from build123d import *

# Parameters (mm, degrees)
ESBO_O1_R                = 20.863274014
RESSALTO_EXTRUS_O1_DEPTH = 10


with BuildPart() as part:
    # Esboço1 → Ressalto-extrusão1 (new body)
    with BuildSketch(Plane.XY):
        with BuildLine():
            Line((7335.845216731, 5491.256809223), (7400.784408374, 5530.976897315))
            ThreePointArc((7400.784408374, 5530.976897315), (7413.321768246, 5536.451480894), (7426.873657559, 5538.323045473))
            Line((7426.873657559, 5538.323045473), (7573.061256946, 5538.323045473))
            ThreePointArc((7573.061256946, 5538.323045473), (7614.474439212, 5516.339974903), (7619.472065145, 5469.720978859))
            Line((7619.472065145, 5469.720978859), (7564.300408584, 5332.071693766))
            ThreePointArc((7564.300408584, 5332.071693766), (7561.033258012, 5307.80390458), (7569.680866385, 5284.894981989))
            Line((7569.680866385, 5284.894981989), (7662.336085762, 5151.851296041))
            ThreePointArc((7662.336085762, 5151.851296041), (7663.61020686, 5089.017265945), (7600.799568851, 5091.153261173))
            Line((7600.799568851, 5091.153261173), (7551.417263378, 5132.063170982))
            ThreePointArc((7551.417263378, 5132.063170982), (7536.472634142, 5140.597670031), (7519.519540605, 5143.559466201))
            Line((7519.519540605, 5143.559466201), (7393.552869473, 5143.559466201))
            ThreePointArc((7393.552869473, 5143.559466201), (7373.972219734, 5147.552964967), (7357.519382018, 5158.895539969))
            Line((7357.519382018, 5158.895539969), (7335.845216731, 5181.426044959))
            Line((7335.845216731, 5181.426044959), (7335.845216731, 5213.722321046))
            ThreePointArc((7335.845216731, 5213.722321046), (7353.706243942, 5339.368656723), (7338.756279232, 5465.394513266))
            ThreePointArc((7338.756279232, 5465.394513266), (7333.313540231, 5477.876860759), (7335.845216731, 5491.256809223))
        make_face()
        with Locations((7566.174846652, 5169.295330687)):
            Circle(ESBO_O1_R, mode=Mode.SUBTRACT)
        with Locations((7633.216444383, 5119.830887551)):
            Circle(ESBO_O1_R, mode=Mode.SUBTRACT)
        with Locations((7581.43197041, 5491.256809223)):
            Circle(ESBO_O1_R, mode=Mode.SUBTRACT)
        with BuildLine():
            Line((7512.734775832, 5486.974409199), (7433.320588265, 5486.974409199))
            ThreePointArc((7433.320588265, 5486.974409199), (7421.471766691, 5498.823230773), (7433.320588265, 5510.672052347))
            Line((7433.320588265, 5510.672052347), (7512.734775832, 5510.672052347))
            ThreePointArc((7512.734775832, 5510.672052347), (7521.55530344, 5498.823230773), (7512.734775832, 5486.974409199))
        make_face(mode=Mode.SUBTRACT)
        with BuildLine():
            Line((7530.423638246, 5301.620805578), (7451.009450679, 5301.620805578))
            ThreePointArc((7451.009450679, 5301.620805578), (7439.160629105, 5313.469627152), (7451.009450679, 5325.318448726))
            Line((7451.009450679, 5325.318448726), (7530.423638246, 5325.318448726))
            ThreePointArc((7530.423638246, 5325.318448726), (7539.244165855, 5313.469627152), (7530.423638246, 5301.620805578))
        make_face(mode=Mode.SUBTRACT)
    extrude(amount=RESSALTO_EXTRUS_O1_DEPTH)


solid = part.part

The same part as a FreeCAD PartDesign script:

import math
import FreeCAD as App
import Part
import Sketcher
from FreeCAD import Vector

doc = App.newDocument("Part")
body = doc.addObject("PartDesign::Body", "Body")

sketch1 = body.newObject("Sketcher::SketchObject", "Sketch")
sketch1.AttachmentSupport = (doc.getObject("XY_Plane"), [""])
sketch1.MapMode = "FlatFace"
sketch1.addGeometry([
    Part.LineSegment(Vector(7401, 5531, 0), Vector(7336, 5491, 0)),
    Part.ArcOfCircle(Part.Circle(Vector(7356, 5480, 0), Vector(0, 0, 1), 23), math.radians(152), math.radians(221)),
    Part.ArcOfCircle(Part.Circle(Vector(6863, 5345, 0), Vector(0, 0, 1), 491), math.radians(-16), math.radians(14)),
    Part.LineSegment(Vector(7336, 5214, 0), Vector(7336, 5181, 0)),
    Part.LineSegment(Vector(7336, 5181, 0), Vector(7358, 5159, 0)),
    Part.ArcOfCircle(Part.Circle(Vector(7394, 5194, 0), Vector(0, 0, 1), 50), math.radians(-136), math.radians(-90)),
    Part.LineSegment(Vector(7394, 5144, 0), Vector(7520, 5144, 0)),
    Part.ArcOfCircle(Part.Circle(Vector(7520, 5094, 0), Vector(0, 0, 1), 50), math.radians(50), math.radians(90)),
    Part.LineSegment(Vector(7551, 5132, 0), Vector(7601, 5091, 0)),
    Part.ArcOfCircle(Part.Circle(Vector(7633, 5120, 0), Vector(0, 0, 1), 43), math.radians(-139), math.radians(48)),
    Part.LineSegment(Vector(7662, 5152, 0), Vector(7570, 5285, 0)),
    Part.ArcOfCircle(Part.Circle(Vector(7611, 5313, 0), Vector(0, 0, 1), 50), math.radians(158), math.radians(215)),
    Part.LineSegment(Vector(7564, 5332, 0), Vector(7619, 5470, 0)),
    Part.ArcOfCircle(Part.Circle(Vector(7573, 5488, 0), Vector(0, 0, 1), 50), math.radians(-22), math.radians(90)),
    Part.LineSegment(Vector(7573, 5538, 0), Vector(7427, 5538, 0)),
    Part.ArcOfCircle(Part.Circle(Vector(7427, 5488, 0), Vector(0, 0, 1), 50), math.radians(90), math.radians(121)),
    Part.Circle(Vector(7633, 5120, 0), Vector(0, 0, 1), 21),
    Part.Circle(Vector(7566, 5169, 0), Vector(0, 0, 1), 21),
    Part.Circle(Vector(7581, 5491, 0), Vector(0, 0, 1), 21),
    Part.LineSegment(Vector(7530, 5302, 0), Vector(7451, 5302, 0)),
    Part.ArcOfCircle(Part.Circle(Vector(7451, 5313, 0), Vector(0, 0, 1), 12), math.radians(90), math.radians(270)),
    Part.LineSegment(Vector(7451, 5325, 0), Vector(7530, 5325, 0)),
    Part.ArcOfCircle(Part.Circle(Vector(7527, 5313, 0), Vector(0, 0, 1), 12), math.radians(-73), math.radians(73)),
    Part.LineSegment(Vector(7513, 5487, 0), Vector(7433, 5487, 0)),
    Part.ArcOfCircle(Part.Circle(Vector(7433, 5499, 0), Vector(0, 0, 1), 12), math.radians(90), math.radians(270)),
    Part.LineSegment(Vector(7433, 5511, 0), Vector(7513, 5511, 0)),
    Part.ArcOfCircle(Part.Circle(Vector(7509, 5499, 0), Vector(0, 0, 1), 12), math.radians(-73), math.radians(73)),
], False)
sketch1.addConstraint([
    Sketcher.Constraint("Coincident", 0, 2, 1, 1),
    Sketcher.Constraint("Coincident", 1, 2, 2, 2),
    Sketcher.Constraint("Coincident", 2, 1, 3, 1),
    Sketcher.Constraint("Coincident", 3, 2, 4, 1),
    Sketcher.Constraint("Tangent", 4, 2, 5, 1),
    Sketcher.Constraint("Tangent", 5, 2, 6, 1),
    Sketcher.Constraint("Tangent", 6, 2, 7, 2),
    Sketcher.Constraint("Tangent", 7, 1, 8, 1),
    Sketcher.Constraint("Coincident", 8, 2, 9, 1),
    Sketcher.Constraint("Coincident", 9, 2, 10, 1),
    Sketcher.Constraint("Tangent", 10, 2, 11, 2),
    Sketcher.Constraint("Tangent", 11, 1, 12, 1),
    Sketcher.Constraint("Tangent", 12, 2, 13, 1),
    Sketcher.Constraint("Tangent", 13, 2, 14, 1),
    Sketcher.Constraint("Tangent", 14, 2, 15, 1),
    Sketcher.Constraint("Tangent", 15, 2, 0, 1),
    Sketcher.Constraint("Tangent", 19, 2, 20, 2),
    Sketcher.Constraint("Tangent", 20, 1, 21, 1),
    Sketcher.Constraint("Coincident", 21, 2, 22, 2),
    Sketcher.Constraint("Coincident", 22, 1, 19, 1),
    Sketcher.Constraint("Tangent", 23, 2, 24, 2),
    Sketcher.Constraint("Tangent", 24, 1, 25, 1),
    Sketcher.Constraint("Coincident", 25, 2, 26, 2),
    Sketcher.Constraint("Coincident", 26, 1, 23, 1),
    Sketcher.Constraint("Vertical", 3),
    Sketcher.Constraint("Horizontal", 6),
    Sketcher.Constraint("Horizontal", 14),
    Sketcher.Constraint("Horizontal", 19),
    Sketcher.Constraint("Horizontal", 21),
    Sketcher.Constraint("Horizontal", 23),
    Sketcher.Constraint("Horizontal", 25),
    Sketcher.Constraint("Coincident", 16, 3, 9, 3),
    Sketcher.Constraint("Equal", 5, 7),
    Sketcher.Constraint("Equal", 7, 11),
    Sketcher.Constraint("Equal", 11, 13),
    Sketcher.Constraint("Equal", 13, 15),
    Sketcher.Constraint("Equal", 16, 17),
    Sketcher.Constraint("Equal", 17, 18),
    Sketcher.Constraint("Equal", 20, 24),
    Sketcher.Constraint("Equal", 22, 26),
    Sketcher.Constraint("Horizontal", 11, 3, 20, 3),
    Sketcher.Constraint("Horizontal", 20, 3, 22, 3),
    Sketcher.Constraint("Horizontal", 24, 3, 26, 3),
    Sketcher.Constraint("Horizontal", 18, 3, 0, 2),
    Sketcher.Constraint("Vertical", 0, 2, 2, 1),
    Sketcher.Constraint("Equal", 21, 23),
    Sketcher.Constraint("Radius", 5, 50.0),
    Sketcher.Constraint("Diameter", 16, 41.726548),
    Sketcher.Constraint("Radius", 20, 11.848822),
    Sketcher.Constraint("DistanceX", 14, 2, 14, 1, 146.187599),
    Sketcher.Constraint("Radius", 1, 23.107494),
    Sketcher.Constraint("Radius", 2, 490.839798),
    Sketcher.Constraint("Radius", 9, 43.281175),
    Sketcher.Constraint("Radius", 22, 12.368664),
    Sketcher.Constraint("DistanceX", 6, 1, 6, 2, 125.966671),
    Sketcher.Constraint("DistanceY", 26, 1, 18, 3, 4.2824),
    Sketcher.Constraint("Distance", 0, 76.123479),
    Sketcher.Constraint("Distance", 10, 162.128381),
    Sketcher.Constraint("DistanceX", 19, 2, 19, 1, 79.414188),
    Sketcher.Constraint("DistanceY", 3, 2, 3, 1, 32.296276),
    Sketcher.Constraint("DistanceY", -1, 1, 1, 3, 5480.461521),
    Sketcher.Constraint("DistanceX", -1, 1, 2, 3, 6862.899278),
    Sketcher.Constraint("DistanceX", -1, 1, 5, 3, 7393.552869),
    Sketcher.Constraint("DistanceY", -1, 1, 17, 3, 5169.295331),
    Sketcher.Constraint("DistanceX", -1, 1, 18, 3, 7581.43197),
    Sketcher.Constraint("DistanceY", -1, 1, 18, 3, 5491.256809),
    Sketcher.Constraint("DistanceX", -1, 1, 20, 3, 7451.009451),
    Sketcher.Constraint("DistanceX", -1, 1, 24, 3, 7433.320588),
    Sketcher.Constraint("DistanceX", -1, 1, 1, 2, 7338.756279),
    Sketcher.Constraint("DistanceY", -1, 1, 4, 2, 5158.89554),
    Sketcher.Constraint("DistanceY", -1, 1, 7, 1, 5132.063171),
    Sketcher.Constraint("DistanceX", -1, 1, 8, 2, 7600.799569),
    Sketcher.Constraint("DistanceY", -1, 1, 8, 2, 5091.153261),
    Sketcher.Constraint("DistanceY", -1, 1, 10, 2, 5284.894982),
    Sketcher.Constraint("DistanceX", -1, 1, 11, 1, 7564.300409),
    Sketcher.Constraint("DistanceY", -1, 1, 12, 2, 5469.720979),
    Sketcher.Constraint("DistanceY", -1, 1, 20, 1, 5325.318449),
    Sketcher.Constraint("DistanceX", 17, 3, 11, 3, 44.53637),
])
pad1 = body.newObject("PartDesign::Pad", "Pad")
pad1.Profile = sketch1
pad1.Length = 10

doc.recompute()
